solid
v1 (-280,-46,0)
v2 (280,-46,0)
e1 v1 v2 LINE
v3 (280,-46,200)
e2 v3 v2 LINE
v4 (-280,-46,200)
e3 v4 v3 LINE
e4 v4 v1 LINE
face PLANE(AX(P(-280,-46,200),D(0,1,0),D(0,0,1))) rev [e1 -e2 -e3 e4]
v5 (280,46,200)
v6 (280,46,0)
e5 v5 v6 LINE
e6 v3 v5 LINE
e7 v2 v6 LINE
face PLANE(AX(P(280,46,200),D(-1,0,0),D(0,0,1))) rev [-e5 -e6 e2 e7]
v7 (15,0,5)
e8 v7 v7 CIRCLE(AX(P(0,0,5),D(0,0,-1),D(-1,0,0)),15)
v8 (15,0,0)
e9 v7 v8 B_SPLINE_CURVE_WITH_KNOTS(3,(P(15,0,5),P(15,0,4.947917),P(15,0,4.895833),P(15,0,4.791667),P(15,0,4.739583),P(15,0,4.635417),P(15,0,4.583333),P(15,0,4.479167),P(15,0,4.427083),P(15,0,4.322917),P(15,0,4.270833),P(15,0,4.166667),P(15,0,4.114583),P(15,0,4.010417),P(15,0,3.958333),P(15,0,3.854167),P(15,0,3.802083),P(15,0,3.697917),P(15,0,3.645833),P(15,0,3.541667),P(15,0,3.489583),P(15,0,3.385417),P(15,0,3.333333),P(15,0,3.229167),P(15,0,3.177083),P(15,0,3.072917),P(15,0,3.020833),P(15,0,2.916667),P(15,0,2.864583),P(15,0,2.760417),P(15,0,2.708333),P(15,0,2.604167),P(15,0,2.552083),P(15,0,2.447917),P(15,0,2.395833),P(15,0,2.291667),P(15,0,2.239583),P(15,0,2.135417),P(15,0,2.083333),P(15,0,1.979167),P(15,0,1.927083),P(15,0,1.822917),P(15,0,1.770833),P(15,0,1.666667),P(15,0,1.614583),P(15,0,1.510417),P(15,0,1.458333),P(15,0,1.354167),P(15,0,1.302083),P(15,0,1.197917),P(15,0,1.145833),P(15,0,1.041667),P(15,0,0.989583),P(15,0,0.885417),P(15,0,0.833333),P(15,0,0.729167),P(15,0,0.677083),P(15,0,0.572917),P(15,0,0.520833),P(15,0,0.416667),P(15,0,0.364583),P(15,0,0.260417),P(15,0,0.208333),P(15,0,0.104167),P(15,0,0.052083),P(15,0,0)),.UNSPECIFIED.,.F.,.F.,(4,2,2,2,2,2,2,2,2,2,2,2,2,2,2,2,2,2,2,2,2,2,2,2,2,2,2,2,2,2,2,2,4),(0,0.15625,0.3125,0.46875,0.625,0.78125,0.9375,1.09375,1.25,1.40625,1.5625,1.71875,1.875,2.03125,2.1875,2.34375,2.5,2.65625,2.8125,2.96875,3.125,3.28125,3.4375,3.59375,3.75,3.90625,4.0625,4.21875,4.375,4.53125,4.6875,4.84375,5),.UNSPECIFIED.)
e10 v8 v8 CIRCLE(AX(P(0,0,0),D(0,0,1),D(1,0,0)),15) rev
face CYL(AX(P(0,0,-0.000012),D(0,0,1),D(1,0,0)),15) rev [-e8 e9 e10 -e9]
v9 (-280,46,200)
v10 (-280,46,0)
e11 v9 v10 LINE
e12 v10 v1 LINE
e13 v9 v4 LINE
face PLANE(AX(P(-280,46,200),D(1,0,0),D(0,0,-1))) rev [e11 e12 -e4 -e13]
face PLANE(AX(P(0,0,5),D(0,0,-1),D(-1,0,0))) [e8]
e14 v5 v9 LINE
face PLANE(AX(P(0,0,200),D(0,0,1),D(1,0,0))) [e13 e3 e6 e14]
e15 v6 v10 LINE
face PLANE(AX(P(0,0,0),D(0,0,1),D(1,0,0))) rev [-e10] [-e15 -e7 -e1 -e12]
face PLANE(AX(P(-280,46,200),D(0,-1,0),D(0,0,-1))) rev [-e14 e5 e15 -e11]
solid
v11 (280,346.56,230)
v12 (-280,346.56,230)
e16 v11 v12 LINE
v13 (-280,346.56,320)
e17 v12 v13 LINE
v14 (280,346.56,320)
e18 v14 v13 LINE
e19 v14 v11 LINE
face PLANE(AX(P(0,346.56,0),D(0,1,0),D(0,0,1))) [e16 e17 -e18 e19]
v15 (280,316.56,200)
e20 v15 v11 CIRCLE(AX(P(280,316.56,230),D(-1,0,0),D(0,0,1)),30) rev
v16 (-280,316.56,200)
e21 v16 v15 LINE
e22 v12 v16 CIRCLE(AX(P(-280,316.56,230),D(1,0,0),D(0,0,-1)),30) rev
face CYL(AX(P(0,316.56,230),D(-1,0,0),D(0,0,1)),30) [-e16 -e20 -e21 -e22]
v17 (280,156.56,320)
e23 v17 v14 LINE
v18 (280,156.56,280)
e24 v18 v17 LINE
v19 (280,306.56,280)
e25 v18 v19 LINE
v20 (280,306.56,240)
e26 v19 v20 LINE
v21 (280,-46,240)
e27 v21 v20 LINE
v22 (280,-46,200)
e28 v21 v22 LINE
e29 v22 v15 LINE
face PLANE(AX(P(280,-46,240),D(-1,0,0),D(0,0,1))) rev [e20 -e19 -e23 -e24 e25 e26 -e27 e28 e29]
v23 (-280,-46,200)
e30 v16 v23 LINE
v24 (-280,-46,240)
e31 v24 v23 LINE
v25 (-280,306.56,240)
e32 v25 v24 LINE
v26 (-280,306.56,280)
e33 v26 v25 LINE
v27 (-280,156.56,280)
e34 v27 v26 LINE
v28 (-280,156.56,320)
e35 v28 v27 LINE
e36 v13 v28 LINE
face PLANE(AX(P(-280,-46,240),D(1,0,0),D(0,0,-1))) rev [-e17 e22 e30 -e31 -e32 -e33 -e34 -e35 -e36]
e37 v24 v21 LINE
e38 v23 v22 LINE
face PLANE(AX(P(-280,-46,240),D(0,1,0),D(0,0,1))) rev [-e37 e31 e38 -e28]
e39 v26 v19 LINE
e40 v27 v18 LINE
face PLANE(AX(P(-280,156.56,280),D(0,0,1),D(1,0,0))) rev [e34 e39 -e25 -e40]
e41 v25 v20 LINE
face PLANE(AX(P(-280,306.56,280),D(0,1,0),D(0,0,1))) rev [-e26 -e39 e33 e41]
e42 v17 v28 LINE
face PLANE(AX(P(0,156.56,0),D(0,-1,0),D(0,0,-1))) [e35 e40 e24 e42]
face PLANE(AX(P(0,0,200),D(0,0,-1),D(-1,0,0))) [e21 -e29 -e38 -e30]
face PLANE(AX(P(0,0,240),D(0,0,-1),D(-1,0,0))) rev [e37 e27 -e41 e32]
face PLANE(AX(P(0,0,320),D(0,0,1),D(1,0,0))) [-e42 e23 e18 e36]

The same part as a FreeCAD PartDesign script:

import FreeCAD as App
import Part
import Sketcher

V = App.Vector
Q = App.Units.Quantity


def edges_at(feature, points):
    """Names of the edges that pass closest to the given points."""
    edges = feature.Shape.Edges
    near = lambda p: min(range(len(edges)), key=lambda i: edges[i].distToShape(Part.Vertex(*p))[0])
    return sorted({f"Edge{near(p) + 1}" for p in points})


def add_polygon(sketch, points):
    """Adds a closed chain of lines whose ends are joined by coincident constraints."""
    first, n = sketch.GeometryCount, len(points)
    for a, b in zip(points, points[1:] + points[:1]):
        sketch.addGeometry(Part.LineSegment(App.Vector(*a, 0), App.Vector(*b, 0)), False)
    for i in range(n):
        sketch.addConstraint(Sketcher.Constraint("Coincident", first + i, 2, first + (i + 1) % n, 1))

doc = App.newDocument("Part")
params = doc.addObject("Spreadsheet::Sheet", "Params")
for row, (alias, value) in enumerate([
    ("sketch1_width", "560 mm"),
    ("sketch1_height", "92 mm"),
    ("pad1_length", "200 mm"),
    ("sketch2_diameter", "30 mm"),
    ("pocket1_length", "480.561293 mm"),
    ("pocket1_length2", "5 mm"),
    ("sketch3_width", "560 mm"),
    ("sketch3_height", "352.56 mm"),
    ("pad2_length", "40 mm"),
    ("sketch4_width", "560 mm"),
    ("sketch4_height", "40 mm"),
    ("pad3_length", "40 mm"),
    ("sketch5_width", "560 mm"),
    ("sketch5_height", "40 mm"),
    ("pad4_length", "40 mm"),
    ("fillet_radius", "30 mm"),
    ("sketch6_width", "560 mm"),
    ("sketch6_height", "40 mm"),
    ("pad5_length", "40 mm"),
    ("sketch7_width", "560 mm"),
    ("sketch7_height", "40 mm"),
    ("pad6_length", "150 mm"),
], start=1):
    params.set(f"A{row}", alias)
    params.set(f"B{row}", "=" + value)
    params.setAlias(f"B{row}", alias)

body = doc.addObject("PartDesign::Body", "Body")

sketch1 = doc.addObject("Sketcher::SketchObject", "Sketch")
body.addObject(sketch1)
sketch1.AttachmentSupport = (doc.XY_Plane, [""])
sketch1.MapMode = "FlatFace"
add_polygon(sketch1, [(-280, 46), (-280, -46), (280, -46), (280, 46)])
sketch1.addConstraint([
    Sketcher.Constraint("Vertical", 0),
    Sketcher.Constraint("Horizontal", 1),
    Sketcher.Constraint("Vertical", 2),
    Sketcher.Constraint("Horizontal", 3),
    Sketcher.Constraint("Symmetric", 0, 2, 2, 2, -1, 1),
    Sketcher.Constraint("DistanceX", 1, 1, 1, 2, Q("560 mm")),
    Sketcher.Constraint("DistanceY", 0, 2, 0, 1, Q("92 mm")),
])
sketch1.setExpression("Constraints[9]", "Params.sketch1_width")
sketch1.setExpression("Constraints[10]", "Params.sketch1_height")
pad1 = doc.addObject("PartDesign::Pad", "Pad")
body.addObject(pad1)
pad1.Profile = sketch1
pad1.setExpression("Length", "Params.pad1_length")

sketch2 = doc.addObject("Sketcher::SketchObject", "Sketch001")
body.addObject(sketch2)
sketch2.AttachmentSupport = (doc.XY_Plane, [""])
sketch2.MapMode = "FlatFace"
sketch2.addGeometry(Part.Circle(V(0, 0, 0), V(0, 0, 1), 15), False)
sketch2.addConstraint([
    Sketcher.Constraint("Coincident", 0, 3, -1, 1),
    Sketcher.Constraint("Diameter", 0, Q("30 mm")),
])
sketch2.setExpression("Constraints[1]", "Params.sketch2_diameter")
pocket1 = doc.addObject("PartDesign::Pocket", "Pocket")
body.addObject(pocket1)
pocket1.Profile = sketch2
pocket1.Type = "TwoLengths"
pocket1.setExpression("Length", "Params.pocket1_length")
pocket1.setExpression("Length2", "Params.pocket1_length2")
body2 = doc.addObject("PartDesign::Body", "Body001")

sketch3 = doc.addObject("Sketcher::SketchObject", "Sketch002")
body2.addObject(sketch3)
sketch3.AttachmentSupport = (doc.getObject("XY_Plane001"), [""])
sketch3.MapMode = "FlatFace"
sketch3.AttachmentOffset = App.Placement(V(0, 0, 200), App.Rotation())
add_polygon(sketch3, [(-280, 306.56), (-280, -46), (280, -46), (280, 306.56)])
sketch3.addConstraint([
    Sketcher.Constraint("Vertical", 0),
    Sketcher.Constraint("Horizontal", 1),
    Sketcher.Constraint("Vertical", 2),
    Sketcher.Constraint("Horizontal", 3),
    Sketcher.Constraint("DistanceX", 1, 1, 1, 2, Q("560 mm")),
    Sketcher.Constraint("DistanceX", 0, 2, -1, 1, Q("280 mm")),
    Sketcher.Constraint("DistanceY", 0, 2, -1, 1, Q("46 mm")),
    Sketcher.Constraint("DistanceY", 0, 2, 0, 1, Q("352.56 mm")),
])
sketch3.setExpression("Constraints[8]", "Params.sketch3_width")
sketch3.setExpression("Constraints[11]", "Params.sketch3_height")
pad2 = doc.addObject("PartDesign::Pad", "Pad001")
body2.addObject(pad2)
pad2.Profile = sketch3
pad2.setExpression("Length", "Params.pad2_length")

sketch4 = doc.addObject("Sketcher::SketchObject", "Sketch003")
body2.addObject(sketch4)
sketch4.AttachmentSupport = (doc.getObject("XZ_Plane001"), [""])
sketch4.MapMode = "FlatFace"
sketch4.AttachmentOffset = App.Placement(V(0, 0, -306.56), App.Rotation())
add_polygon(sketch4, [(-280, 200), (-280, 240), (280, 240), (280, 200)])
sketch4.addConstraint([
    Sketcher.Constraint("Vertical", 0),
    Sketcher.Constraint("Horizontal", 1),
    Sketcher.Constraint("Vertical", 2),
    Sketcher.Constraint("Horizontal", 3),
    Sketcher.Constraint("DistanceX", 1, 1, 1, 2, Q("560 mm")),
    Sketcher.Constraint("DistanceY", 0, 1, 0, 2, Q("40 mm")),
    Sketcher.Constraint("DistanceX", 0, 2, -1, 1, Q("280 mm")),
    Sketcher.Constraint("DistanceY", -1, 1, 0, 2, Q("240 mm")),
])
sketch4.setExpression("Constraints[8]", "Params.sketch4_width")
sketch4.setExpression("Constraints[9]", "Params.sketch4_height")
pad3 = doc.addObject("PartDesign::Pad", "Pad002")
body2.addObject(pad3)
pad3.Profile = sketch4
pad3.setExpression("Length", "Params.pad3_length")
pad3.Reversed = True

sketch5 = doc.addObject("Sketcher::SketchObject", "Sketch004")
body2.addObject(sketch5)
sketch5.AttachmentSupport = (doc.getObject("XY_Plane001"), [""])
sketch5.MapMode = "FlatFace"
sketch5.AttachmentOffset = App.Placement(V(0, 0, 240), App.Rotation())
add_polygon(sketch5, [(-280, 346.56), (-280, 306.56), (280, 306.56), (280, 346.56)])
sketch5.addConstraint([
    Sketcher.Constraint("Vertical", 0),
    Sketcher.Constraint("Horizontal", 1),
    Sketcher.Constraint("Vertical", 2),
    Sketcher.Constraint("Horizontal", 3),
    Sketcher.Constraint("DistanceX", 1, 1, 1, 2, Q("560 mm")),
    Sketcher.Constraint("DistanceY", 0, 2, 0, 1, Q("40 mm")),
    Sketcher.Constraint("DistanceX", 0, 2, -1, 1, Q("280 mm")),
    Sketcher.Constraint("DistanceY", -1, 1, 0, 2, Q("306.56 mm")),
])
sketch5.setExpression("Constraints[8]", "Params.sketch5_width")
sketch5.setExpression("Constraints[9]", "Params.sketch5_height")
pad4 = doc.addObject("PartDesign::Pad", "Pad003")
body2.addObject(pad4)
pad4.Profile = sketch5
pad4.setExpression("Length", "Params.pad4_length")
doc.recompute()

fillet = doc.addObject("PartDesign::Fillet", "Fillet")
body2.addObject(fillet)
fillet.Base = (pad4, edges_at(pad4, [(0, 346.56, 200)]))
fillet.setExpression("Radius", "Params.fillet_radius")

sketch6 = doc.addObject("Sketcher::SketchObject", "Sketch005")
body2.addObject(sketch6)
sketch6.AttachmentSupport = (doc.getObject("XY_Plane001"), [""])
sketch6.MapMode = "FlatFace"
sketch6.AttachmentOffset = App.Placement(V(0, 0, 280), App.Rotation())
add_polygon(sketch6, [(-280, 346.56), (-280, 306.56), (280, 306.56), (280, 346.56)])
sketch6.addConstraint([
    Sketcher.Constraint("Vertical", 0),
    Sketcher.Constraint("Horizontal", 1),
    Sketcher.Constraint("Vertical", 2),
    Sketcher.Constraint("Horizontal", 3),
    Sketcher.Constraint("DistanceX", 1, 1, 1, 2, Q("560 mm")),
    Sketcher.Constraint("DistanceY", 0, 2, 0, 1, Q("40 mm")),
    Sketcher.Constraint("DistanceX", 0, 2, -1, 1, Q("280 mm")),
    Sketcher.Constraint("DistanceY", -1, 1, 0, 2, Q("306.56 mm")),
])
sketch6.setExpression("Constraints[8]", "Params.sketch6_width")
sketch6.setExpression("Constraints[9]", "Params.sketch6_height")
pad5 = doc.addObject("PartDesign::Pad", "Pad004")
body2.addObject(pad5)
pad5.Profile = sketch6
pad5.setExpression("Length", "Params.pad5_length")

sketch7 = doc.addObject("Sketcher::SketchObject", "Sketch006")
body2.addObject(sketch7)
sketch7.AttachmentSupport = (doc.getObject("XZ_Plane001"), [""])
sketch7.MapMode = "FlatFace"
sketch7.AttachmentOffset = App.Placement(V(0, 0, -306.56), App.Rotation())
add_polygon(sketch7, [(-280, 320), (-280, 280), (280, 280), (280, 320)])
sketch7.addConstraint([
    Sketcher.Constraint("Vertical", 0),
    Sketcher.Constraint("Horizontal", 1),
    Sketcher.Constraint("Vertical", 2),
    Sketcher.Constraint("Horizontal", 3),
    Sketcher.Constraint("DistanceX", 1, 1, 1, 2, Q("560 mm")),
    Sketcher.Constraint("DistanceY", 0, 2, 0, 1, Q("40 mm")),
    Sketcher.Constraint("DistanceX", 0, 2, -1, 1, Q("280 mm")),
    Sketcher.Constraint("DistanceY", -1, 1, 0, 2, Q("280 mm")),
])
sketch7.setExpression("Constraints[8]", "Params.sketch7_width")
sketch7.setExpression("Constraints[9]", "Params.sketch7_height")
pad6 = doc.addObject("PartDesign::Pad", "Pad005")
body2.addObject(pad6)
pad6.Profile = sketch7
pad6.setExpression("Length", "Params.pad6_length")

doc.recompute()
